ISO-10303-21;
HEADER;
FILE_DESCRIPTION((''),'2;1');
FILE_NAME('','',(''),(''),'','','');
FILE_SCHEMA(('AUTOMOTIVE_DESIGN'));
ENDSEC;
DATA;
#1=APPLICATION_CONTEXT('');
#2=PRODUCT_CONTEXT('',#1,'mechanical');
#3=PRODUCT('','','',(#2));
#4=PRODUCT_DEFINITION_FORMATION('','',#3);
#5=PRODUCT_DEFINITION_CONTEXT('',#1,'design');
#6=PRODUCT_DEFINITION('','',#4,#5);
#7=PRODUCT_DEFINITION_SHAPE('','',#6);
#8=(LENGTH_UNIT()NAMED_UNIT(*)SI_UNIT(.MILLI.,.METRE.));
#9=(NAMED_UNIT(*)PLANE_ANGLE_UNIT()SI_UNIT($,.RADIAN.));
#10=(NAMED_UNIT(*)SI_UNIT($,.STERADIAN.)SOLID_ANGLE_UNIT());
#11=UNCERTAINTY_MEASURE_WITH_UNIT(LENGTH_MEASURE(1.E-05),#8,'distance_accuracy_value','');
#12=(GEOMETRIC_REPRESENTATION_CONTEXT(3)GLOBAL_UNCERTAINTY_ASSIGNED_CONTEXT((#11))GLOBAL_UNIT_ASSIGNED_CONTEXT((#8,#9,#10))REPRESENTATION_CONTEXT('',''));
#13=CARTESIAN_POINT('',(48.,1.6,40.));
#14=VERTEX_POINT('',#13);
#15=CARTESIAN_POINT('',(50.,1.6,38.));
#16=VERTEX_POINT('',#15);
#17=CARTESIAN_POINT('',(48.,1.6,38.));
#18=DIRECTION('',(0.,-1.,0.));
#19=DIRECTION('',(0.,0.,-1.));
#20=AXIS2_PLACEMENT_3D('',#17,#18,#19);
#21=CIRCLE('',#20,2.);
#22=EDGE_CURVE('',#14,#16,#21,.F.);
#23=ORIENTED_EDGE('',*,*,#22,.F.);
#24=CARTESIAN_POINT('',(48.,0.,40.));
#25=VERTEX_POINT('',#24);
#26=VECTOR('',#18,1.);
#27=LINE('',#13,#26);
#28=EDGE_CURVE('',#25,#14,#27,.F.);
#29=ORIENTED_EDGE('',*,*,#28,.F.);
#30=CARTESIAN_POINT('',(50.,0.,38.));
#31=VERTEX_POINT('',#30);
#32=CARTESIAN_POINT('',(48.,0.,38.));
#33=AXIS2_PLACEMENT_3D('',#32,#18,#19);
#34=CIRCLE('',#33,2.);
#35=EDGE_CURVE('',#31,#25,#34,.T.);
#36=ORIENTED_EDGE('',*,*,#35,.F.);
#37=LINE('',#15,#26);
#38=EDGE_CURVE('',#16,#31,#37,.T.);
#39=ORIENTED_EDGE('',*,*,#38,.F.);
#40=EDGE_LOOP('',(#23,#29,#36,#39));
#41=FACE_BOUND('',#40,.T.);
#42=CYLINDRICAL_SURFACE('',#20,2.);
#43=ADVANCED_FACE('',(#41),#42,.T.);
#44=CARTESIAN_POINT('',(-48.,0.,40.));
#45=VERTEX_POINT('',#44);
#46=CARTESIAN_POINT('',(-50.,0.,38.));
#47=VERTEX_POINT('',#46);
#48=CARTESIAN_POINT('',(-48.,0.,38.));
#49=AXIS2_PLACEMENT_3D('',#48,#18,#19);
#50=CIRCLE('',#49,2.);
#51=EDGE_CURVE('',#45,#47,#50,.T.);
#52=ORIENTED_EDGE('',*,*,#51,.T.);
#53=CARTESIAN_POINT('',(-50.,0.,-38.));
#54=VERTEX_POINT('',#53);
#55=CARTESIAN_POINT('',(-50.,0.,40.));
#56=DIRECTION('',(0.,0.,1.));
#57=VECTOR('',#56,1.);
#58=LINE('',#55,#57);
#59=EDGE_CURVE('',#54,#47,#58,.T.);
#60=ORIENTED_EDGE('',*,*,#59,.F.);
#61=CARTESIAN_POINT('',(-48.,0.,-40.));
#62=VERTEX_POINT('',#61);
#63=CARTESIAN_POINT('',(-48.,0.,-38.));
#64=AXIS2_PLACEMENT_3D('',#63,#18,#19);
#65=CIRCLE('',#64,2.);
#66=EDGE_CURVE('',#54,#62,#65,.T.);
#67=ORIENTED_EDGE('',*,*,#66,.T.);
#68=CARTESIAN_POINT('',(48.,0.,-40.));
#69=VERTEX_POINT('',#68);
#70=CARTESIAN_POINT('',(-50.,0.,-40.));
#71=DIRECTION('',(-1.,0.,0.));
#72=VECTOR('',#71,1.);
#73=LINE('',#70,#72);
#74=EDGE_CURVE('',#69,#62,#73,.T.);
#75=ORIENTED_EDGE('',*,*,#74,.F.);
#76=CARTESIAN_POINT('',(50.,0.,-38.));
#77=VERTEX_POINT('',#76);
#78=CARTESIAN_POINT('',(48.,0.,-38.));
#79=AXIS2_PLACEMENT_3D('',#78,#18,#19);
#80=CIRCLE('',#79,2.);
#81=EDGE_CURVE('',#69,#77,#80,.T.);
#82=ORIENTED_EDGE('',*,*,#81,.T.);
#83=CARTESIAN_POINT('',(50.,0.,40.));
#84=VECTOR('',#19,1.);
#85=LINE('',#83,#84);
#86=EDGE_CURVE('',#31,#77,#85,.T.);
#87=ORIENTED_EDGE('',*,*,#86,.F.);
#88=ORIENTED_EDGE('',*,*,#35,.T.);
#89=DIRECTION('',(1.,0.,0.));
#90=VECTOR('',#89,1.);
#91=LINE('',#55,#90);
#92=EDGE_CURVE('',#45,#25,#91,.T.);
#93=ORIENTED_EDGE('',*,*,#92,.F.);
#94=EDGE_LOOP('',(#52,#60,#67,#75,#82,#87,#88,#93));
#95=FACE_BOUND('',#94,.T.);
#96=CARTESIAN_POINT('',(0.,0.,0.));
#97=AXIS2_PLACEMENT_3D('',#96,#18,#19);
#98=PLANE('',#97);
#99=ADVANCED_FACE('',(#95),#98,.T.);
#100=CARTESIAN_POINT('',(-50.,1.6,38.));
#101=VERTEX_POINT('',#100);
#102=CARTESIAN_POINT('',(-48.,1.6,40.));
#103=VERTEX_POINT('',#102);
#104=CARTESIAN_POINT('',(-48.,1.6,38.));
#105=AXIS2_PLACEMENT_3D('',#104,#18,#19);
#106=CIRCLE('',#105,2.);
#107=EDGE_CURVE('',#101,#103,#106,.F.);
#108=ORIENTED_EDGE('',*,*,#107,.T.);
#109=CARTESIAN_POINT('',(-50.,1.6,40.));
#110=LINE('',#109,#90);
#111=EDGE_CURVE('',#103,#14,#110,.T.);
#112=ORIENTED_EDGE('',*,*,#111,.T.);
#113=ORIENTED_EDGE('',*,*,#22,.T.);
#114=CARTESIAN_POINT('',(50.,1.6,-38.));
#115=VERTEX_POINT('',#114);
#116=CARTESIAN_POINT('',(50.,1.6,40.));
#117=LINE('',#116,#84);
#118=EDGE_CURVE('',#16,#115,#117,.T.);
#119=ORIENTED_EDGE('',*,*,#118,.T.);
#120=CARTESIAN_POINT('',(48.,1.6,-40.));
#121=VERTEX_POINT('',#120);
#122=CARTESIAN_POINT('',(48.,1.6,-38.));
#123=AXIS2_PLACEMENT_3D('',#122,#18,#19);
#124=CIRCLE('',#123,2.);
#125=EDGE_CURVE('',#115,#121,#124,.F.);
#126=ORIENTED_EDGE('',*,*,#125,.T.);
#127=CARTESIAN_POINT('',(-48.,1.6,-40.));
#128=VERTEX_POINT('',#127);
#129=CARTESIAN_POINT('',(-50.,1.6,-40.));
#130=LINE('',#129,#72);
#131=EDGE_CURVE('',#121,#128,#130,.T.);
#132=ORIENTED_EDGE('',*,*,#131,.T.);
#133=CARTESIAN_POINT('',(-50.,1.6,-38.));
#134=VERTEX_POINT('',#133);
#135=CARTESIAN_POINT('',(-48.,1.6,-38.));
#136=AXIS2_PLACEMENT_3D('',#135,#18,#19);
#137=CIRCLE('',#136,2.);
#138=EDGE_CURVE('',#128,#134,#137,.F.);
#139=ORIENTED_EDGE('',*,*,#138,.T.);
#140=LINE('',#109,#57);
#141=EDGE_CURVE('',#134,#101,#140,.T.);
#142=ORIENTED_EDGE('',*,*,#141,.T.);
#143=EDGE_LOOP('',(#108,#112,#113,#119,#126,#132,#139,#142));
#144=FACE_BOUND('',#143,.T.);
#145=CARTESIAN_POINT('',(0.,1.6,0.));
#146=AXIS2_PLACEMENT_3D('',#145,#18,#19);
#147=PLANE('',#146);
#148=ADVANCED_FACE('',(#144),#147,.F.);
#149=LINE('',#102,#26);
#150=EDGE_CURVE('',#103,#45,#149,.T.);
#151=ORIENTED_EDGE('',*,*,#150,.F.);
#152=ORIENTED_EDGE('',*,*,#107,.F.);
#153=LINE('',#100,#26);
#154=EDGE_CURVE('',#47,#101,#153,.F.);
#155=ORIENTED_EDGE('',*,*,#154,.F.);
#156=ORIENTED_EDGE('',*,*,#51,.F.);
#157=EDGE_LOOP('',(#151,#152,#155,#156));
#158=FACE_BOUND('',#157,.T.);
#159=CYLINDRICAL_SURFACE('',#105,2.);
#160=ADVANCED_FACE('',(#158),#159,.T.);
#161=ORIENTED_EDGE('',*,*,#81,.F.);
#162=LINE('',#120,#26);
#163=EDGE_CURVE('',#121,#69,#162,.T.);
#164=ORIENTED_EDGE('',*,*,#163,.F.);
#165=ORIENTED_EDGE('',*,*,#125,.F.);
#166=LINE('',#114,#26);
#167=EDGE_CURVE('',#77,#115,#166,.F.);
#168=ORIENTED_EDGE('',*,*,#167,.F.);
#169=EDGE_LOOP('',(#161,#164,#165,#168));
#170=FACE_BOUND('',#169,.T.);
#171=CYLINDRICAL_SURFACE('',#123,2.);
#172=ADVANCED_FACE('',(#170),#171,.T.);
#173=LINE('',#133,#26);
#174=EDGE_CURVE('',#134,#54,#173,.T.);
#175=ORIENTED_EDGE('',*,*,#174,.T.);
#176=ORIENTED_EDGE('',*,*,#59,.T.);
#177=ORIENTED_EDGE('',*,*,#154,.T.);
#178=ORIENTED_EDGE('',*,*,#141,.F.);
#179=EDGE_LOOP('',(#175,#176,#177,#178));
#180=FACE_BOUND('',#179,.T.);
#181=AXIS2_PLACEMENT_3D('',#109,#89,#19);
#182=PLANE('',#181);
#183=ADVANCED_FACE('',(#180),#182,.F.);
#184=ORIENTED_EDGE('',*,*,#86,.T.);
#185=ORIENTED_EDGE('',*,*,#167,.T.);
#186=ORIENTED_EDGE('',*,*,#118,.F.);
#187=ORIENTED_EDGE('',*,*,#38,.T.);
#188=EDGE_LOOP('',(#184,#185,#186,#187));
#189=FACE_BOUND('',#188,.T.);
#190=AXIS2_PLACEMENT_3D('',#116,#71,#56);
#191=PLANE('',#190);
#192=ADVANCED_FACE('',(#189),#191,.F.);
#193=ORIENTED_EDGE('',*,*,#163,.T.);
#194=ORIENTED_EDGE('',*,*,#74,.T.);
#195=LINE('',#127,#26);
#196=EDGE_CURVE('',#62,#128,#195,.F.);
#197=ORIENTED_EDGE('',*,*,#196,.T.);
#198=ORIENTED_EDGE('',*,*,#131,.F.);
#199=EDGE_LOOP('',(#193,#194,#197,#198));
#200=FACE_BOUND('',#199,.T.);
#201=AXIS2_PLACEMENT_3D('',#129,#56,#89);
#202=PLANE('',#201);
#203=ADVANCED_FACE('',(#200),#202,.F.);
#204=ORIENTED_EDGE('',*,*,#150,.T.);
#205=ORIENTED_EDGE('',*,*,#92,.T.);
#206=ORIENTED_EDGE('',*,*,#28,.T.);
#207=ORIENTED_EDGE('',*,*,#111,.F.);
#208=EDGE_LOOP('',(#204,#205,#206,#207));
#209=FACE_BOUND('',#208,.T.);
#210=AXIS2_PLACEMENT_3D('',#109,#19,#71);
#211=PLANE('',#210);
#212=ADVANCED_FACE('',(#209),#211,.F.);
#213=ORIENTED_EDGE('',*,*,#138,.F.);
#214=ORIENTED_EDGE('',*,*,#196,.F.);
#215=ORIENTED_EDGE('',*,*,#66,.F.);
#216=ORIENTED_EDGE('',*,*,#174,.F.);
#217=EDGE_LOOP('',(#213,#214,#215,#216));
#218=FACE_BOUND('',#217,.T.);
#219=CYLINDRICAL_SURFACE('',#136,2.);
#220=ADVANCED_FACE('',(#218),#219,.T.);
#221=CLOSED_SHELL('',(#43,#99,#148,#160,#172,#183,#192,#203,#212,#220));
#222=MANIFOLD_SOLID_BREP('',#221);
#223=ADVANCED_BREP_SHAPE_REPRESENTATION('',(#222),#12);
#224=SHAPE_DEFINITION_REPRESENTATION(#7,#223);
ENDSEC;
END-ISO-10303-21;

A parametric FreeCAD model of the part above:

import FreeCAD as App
import Part
import Sketcher
Q = App.Units.Quantity


def edges_at(feature, points):
    """Names of the edges that pass closest to the given points."""
    edges = feature.Shape.Edges
    near = lambda p: min(range(len(edges)), key=lambda i: edges[i].distToShape(Part.Vertex(*p))[0])
    return sorted({f"Edge{near(p) + 1}" for p in points})


def add_polygon(sketch, points):
    """Adds a closed chain of lines whose ends are joined by coincident constraints."""
    first, n = sketch.GeometryCount, len(points)
    for a, b in zip(points, points[1:] + points[:1]):
        sketch.addGeometry(Part.LineSegment(App.Vector(*a, 0), App.Vector(*b, 0)), False)
    for i in range(n):
        sketch.addConstraint(Sketcher.Constraint("Coincident", first + i, 2, first + (i + 1) % n, 1))

doc = App.newDocument("Part")
body = doc.addObject("PartDesign::Body", "Body")

sketch1 = body.newObject("Sketcher::SketchObject", "Sketch")
sketch1.AttachmentSupport = (doc.getObject("XZ_Plane"), [""])
sketch1.MapMode = "FlatFace"
add_polygon(sketch1, [(-50, -40), (-50, 40), (50, 40), (50, -40)])
sketch1.addConstraint([
    Sketcher.Constraint("Vertical", 0),
    Sketcher.Constraint("Horizontal", 1),
    Sketcher.Constraint("Vertical", 2),
    Sketcher.Constraint("Horizontal", 3),
    Sketcher.Constraint("Symmetric", 0, 2, 2, 2, -1, 1),
    Sketcher.Constraint("DistanceX", 1, 1, 1, 2, Q("100 mm")),
    Sketcher.Constraint("DistanceY", 0, 1, 0, 2, Q("80 mm")),
])
pad1 = body.newObject("PartDesign::Pad", "Pad")
pad1.Profile = sketch1
pad1.Length = 1.6
pad1.Reversed = True
doc.recompute()

fillet = body.newObject("PartDesign::Fillet", "Fillet")
fillet.Base = (pad1, edges_at(pad1, [
    (50, 0.8, 40),
    (-50, 0.8, 40),
    (-50, 0.8, -40),
    (50, 0.8, -40),
]))
fillet.Radius = 2

doc.recompute()
